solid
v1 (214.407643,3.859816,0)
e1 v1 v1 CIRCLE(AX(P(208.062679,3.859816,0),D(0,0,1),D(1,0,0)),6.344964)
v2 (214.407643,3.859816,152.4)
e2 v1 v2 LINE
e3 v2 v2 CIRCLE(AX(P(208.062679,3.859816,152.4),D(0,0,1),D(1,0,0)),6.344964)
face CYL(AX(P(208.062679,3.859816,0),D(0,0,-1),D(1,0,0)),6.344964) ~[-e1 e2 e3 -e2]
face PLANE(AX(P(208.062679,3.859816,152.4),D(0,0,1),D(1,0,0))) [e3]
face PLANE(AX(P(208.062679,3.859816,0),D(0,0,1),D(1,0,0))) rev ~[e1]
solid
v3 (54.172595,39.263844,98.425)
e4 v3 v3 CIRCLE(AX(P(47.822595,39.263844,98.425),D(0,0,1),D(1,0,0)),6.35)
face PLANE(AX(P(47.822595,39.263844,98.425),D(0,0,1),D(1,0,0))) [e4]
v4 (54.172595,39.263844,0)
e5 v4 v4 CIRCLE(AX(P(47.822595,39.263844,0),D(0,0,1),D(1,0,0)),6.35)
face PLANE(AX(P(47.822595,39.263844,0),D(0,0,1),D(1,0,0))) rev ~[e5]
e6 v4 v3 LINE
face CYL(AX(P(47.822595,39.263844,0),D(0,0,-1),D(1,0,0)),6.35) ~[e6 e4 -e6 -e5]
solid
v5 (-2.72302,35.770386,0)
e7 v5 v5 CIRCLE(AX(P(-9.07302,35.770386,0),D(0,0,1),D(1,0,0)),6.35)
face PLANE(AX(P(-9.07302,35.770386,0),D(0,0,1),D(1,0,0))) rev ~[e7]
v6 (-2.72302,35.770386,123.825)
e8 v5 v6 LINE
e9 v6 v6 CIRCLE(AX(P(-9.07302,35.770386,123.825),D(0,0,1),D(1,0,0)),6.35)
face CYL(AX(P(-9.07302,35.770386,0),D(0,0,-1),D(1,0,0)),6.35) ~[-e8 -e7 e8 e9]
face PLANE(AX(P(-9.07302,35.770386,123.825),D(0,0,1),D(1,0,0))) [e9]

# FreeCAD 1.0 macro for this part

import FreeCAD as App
import Part
import Sketcher
from FreeCAD import Vector
Q = App.Units.Quantity

doc = App.newDocument("Part")
body = doc.addObject("PartDesign::Body", "Body")

# Sketch on XY plane
sketch1 = body.newObject("Sketcher::SketchObject", "Sketch")
sketch1.AttachmentSupport = (doc.getObject("XY_Plane"), [""])
sketch1.MapMode = "FlatFace"
sketch1.addGeometry(Part.Circle(Vector(208, 4, 0), Vector(0, 0, 1), 6), False)
sketch1.addConstraint([
    Sketcher.Constraint("Diameter", 0, Q("12.689928 mm")),
    Sketcher.Constraint("DistanceX", -1, 1, 0, 3, Q("208.062679 mm")),
    Sketcher.Constraint("DistanceY", -1, 1, 0, 3, Q("3.859816 mm")),
])
pad1 = body.newObject("PartDesign::Pad", "Pad")
pad1.Profile = sketch1
pad1.Length = Q("6 in")
body2 = doc.addObject("PartDesign::Body", "Body001")

# Sketch on XY plane
sketch2 = body2.newObject("Sketcher::SketchObject", "Sketch001")
sketch2.AttachmentSupport = (doc.getObject("XY_Plane001"), [""])
sketch2.MapMode = "FlatFace"
sketch2.addGeometry(Part.Circle(Vector(48, 39, 0), Vector(0, 0, 1), 6), False)
sketch2.addConstraint([
    Sketcher.Constraint("Diameter", 0, Q("0.5 in")),
    Sketcher.Constraint("DistanceX", -1, 1, 0, 3, Q("47.822595 mm")),
    Sketcher.Constraint("DistanceY", -1, 1, 0, 3, Q("39.263844 mm")),
])
pad2 = body2.newObject("PartDesign::Pad", "Pad001")
pad2.Profile = sketch2
pad2.Length = Q("3.875 in")
body3 = doc.addObject("PartDesign::Body", "Body002")

# Sketch on XY plane
sketch3 = body3.newObject("Sketcher::SketchObject", "Sketch002")
sketch3.AttachmentSupport = (doc.getObject("XY_Plane002"), [""])
sketch3.MapMode = "FlatFace"
sketch3.addGeometry(Part.Circle(Vector(-9, 36, 0), Vector(0, 0, 1), 6), False)
sketch3.addConstraint([
    Sketcher.Constraint("Diameter", 0, Q("0.5 in")),
    Sketcher.Constraint("DistanceX", 0, 3, -1, 1, Q("9.07302 mm")),
    Sketcher.Constraint("DistanceY", -1, 1, 0, 3, Q("35.770386 mm")),
])
pad3 = body3.newObject("PartDesign::Pad", "Pad002")
pad3.Profile = sketch3
pad3.Length = Q("4.875 in")

doc.recompute()
